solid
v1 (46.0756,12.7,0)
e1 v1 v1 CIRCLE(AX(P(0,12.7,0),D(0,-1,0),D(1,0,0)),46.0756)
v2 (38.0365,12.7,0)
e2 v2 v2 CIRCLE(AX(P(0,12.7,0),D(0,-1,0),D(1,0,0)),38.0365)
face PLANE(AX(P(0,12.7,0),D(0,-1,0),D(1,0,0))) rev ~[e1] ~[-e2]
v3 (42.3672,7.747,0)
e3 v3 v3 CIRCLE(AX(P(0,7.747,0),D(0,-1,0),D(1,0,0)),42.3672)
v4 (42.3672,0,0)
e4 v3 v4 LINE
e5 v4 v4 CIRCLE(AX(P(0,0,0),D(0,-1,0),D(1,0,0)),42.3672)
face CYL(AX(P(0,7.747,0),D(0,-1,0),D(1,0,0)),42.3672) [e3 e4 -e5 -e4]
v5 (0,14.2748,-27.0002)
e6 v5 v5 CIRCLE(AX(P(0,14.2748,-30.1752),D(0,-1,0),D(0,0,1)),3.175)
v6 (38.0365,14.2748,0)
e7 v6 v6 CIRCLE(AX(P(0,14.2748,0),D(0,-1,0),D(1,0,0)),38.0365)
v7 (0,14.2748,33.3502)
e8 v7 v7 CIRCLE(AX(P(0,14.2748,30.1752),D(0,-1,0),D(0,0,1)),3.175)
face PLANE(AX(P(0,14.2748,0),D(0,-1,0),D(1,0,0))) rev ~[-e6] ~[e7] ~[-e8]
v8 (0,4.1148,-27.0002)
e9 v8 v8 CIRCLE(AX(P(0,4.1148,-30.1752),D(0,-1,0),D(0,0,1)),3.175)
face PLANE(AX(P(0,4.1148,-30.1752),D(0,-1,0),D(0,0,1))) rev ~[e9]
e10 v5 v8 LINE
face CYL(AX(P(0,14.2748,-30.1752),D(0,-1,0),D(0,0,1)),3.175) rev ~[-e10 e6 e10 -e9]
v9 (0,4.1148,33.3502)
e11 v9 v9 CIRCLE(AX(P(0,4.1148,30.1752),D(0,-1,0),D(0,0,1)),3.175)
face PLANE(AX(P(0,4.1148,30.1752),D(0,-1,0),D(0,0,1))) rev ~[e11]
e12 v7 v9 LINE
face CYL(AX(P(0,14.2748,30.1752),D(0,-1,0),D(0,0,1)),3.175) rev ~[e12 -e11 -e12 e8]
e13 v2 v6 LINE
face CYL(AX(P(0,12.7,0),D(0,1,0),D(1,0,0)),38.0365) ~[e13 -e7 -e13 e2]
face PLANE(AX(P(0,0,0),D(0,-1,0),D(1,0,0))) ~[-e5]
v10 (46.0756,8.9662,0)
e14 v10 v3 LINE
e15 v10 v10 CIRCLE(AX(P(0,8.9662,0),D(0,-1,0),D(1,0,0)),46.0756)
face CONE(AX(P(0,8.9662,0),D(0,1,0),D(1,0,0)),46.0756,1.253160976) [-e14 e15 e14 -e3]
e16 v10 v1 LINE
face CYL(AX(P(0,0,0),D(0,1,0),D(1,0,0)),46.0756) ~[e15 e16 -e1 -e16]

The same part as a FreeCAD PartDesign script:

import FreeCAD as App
import Part
import Sketcher

V = App.Vector
Q = App.Units.Quantity


def add_polygon(sketch, points):
    """Adds a closed chain of lines whose ends are joined by coincident constraints."""
    first, n = sketch.GeometryCount, len(points)
    for a, b in zip(points, points[1:] + points[:1]):
        sketch.addGeometry(Part.LineSegment(App.Vector(*a, 0), App.Vector(*b, 0)), False)
    for i in range(n):
        sketch.addConstraint(Sketcher.Constraint("Coincident", first + i, 2, first + (i + 1) % n, 1))

doc = App.newDocument("Part")
body = doc.addObject("PartDesign::Body", "Body")

# Sketch on XY plane
sketch1 = body.newObject("Sketcher::SketchObject", "Sketch")
sketch1.AttachmentSupport = (doc.getObject("XY_Plane"), [""])
sketch1.MapMode = "FlatFace"
add_polygon(sketch1, [(46.1, 12.7), (38, 12.7), (38, 14.3), (0, 14.3), (0, 0), (42.4, 0), (42.4, 7.7), (46.1, 9)])  # lines 0-7
sketch1.addConstraint(Sketcher.Constraint("Horizontal", 0))
sketch1.addConstraint(Sketcher.Constraint("Vertical", 1))
sketch1.addConstraint(Sketcher.Constraint("Horizontal", 2))
sketch1.addConstraint(Sketcher.Constraint("Vertical", 3))
sketch1.addConstraint(Sketcher.Constraint("Horizontal", 4))
sketch1.addConstraint(Sketcher.Constraint("Vertical", 5))
sketch1.addConstraint(Sketcher.Constraint("Vertical", 7))
sketch1.addConstraint(Sketcher.Constraint("Coincident", 3, 2, -1, 1))
sketch1.addConstraint(Sketcher.Constraint("DistanceY", -1, 1, 0, 2, Q("0.5 in")))
sketch1.addConstraint(Sketcher.Constraint("DistanceX", 4, 1, 4, 2, Q("1.668 in")))
sketch1.addConstraint(Sketcher.Constraint("DistanceY", 1, 1, 1, 2, Q("0.062 in")))
sketch1.addConstraint(Sketcher.Constraint("DistanceY", 7, 1, 7, 2, Q("0.147 in")))
sketch1.addConstraint(Sketcher.Constraint("DistanceX", 2, 2, 2, 1, Q("1.4975 in")))
sketch1.addConstraint(Sketcher.Constraint("DistanceX", -1, 1, 6, 2, Q("1.814 in")))
sketch1.addConstraint(Sketcher.Constraint("DistanceY", 5, 2, 0, 2, Q("0.195 in")))
revolution = body.newObject("PartDesign::Revolution", "Revolution")
revolution.Profile = sketch1
revolution.ReferenceAxis = (sketch1, ["V_Axis"])
revolution.Angle = 360

# Sketch on XZ plane
sketch2 = body.newObject("Sketcher::SketchObject", "Sketch001")
sketch2.AttachmentSupport = (doc.getObject("XZ_Plane"), [""])
sketch2.MapMode = "FlatFace"
sketch2.AttachmentOffset = App.Placement(V(0, 0, -0.562 * 25.4), App.Rotation())
sketch2.addGeometry(Part.Circle(V(0, -30.2, 0), V(0, 0, 1), 3.2), False)
sketch2.addGeometry(Part.Circle(V(0, 30.2, 0), V(0, 0, 1), 3.2), False)
sketch2.addConstraint(Sketcher.Constraint("Equal", 0, 1))
sketch2.addConstraint(Sketcher.Constraint("Symmetric", 0, 3, 1, 3, -1, 1))
sketch2.addConstraint(Sketcher.Constraint("PointOnObject", 0, 3, -2))
sketch2.addConstraint(Sketcher.Constraint("Diameter", 0, Q("0.25 in")))
sketch2.addConstraint(Sketcher.Constraint("DistanceY", 0, 3, -1, 1, Q("1.188 in")))
doc.recompute()
hole = body.newObject("PartDesign::Hole", "Hole")
hole.Profile = sketch2
hole.ThreadType = "None"
hole.Diameter = Q("0.25 in")
hole.DepthType = "Dimension"
hole.Depth = Q("0.4 in")
hole.DrillPoint = "Flat"
hole.Reversed = True

doc.recompute()
